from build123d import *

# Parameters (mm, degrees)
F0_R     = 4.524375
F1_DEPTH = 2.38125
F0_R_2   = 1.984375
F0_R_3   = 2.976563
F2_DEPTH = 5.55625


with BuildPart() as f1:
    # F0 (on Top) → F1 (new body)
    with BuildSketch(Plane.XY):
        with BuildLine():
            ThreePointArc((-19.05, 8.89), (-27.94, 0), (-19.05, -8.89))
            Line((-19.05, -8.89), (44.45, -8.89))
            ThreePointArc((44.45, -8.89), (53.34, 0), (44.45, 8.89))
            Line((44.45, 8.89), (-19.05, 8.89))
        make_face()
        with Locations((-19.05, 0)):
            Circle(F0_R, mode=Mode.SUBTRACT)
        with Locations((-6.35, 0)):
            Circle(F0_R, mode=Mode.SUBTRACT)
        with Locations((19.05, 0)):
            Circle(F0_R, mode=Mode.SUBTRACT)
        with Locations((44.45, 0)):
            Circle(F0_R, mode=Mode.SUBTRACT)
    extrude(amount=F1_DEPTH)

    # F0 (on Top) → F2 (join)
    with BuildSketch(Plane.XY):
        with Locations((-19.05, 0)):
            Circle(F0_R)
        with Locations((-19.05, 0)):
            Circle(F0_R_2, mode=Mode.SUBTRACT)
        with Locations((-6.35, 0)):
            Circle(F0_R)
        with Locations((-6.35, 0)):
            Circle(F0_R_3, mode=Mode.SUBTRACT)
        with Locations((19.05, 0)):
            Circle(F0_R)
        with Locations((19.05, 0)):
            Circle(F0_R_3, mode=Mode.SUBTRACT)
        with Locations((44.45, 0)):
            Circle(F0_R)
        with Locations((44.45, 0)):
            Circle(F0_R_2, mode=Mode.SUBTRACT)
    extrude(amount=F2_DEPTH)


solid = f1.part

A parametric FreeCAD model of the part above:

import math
import FreeCAD as App
import Part
import Sketcher
from FreeCAD import Vector
Q = App.Units.Quantity

doc = App.newDocument("Part")
body = doc.addObject("PartDesign::Body", "Body")

# Sketch on XY plane
sketch1 = body.newObject("Sketcher::SketchObject", "Sketch")
sketch1.AttachmentSupport = (doc.getObject("XY_Plane"), [""])
sketch1.MapMode = "FlatFace"
sketch1.addGeometry([
    Part.ArcOfCircle(Part.Circle(Vector(-19.05, 0, 0), Vector(0, 0, 1), 8.89), math.radians(90), math.radians(270)),  # 0
    Part.LineSegment(Vector(-19.05, -8.89, 0), Vector(44.45, -8.89, 0)),  # 1
    Part.ArcOfCircle(Part.Circle(Vector(44.45, 0, 0), Vector(0, 0, 1), 8.89), math.radians(-90), math.radians(90)),  # 2
    Part.LineSegment(Vector(44.45, 8.89, 0), Vector(-19.05, 8.89, 0)),  # 3
    Part.Circle(Vector(-19.05, 0, 0), Vector(0, 0, 1), 4.524375),  # 4
    Part.Circle(Vector(-6.35, 0, 0), Vector(0, 0, 1), 4.524375),  # 5
    Part.Circle(Vector(19.05, 0, 0), Vector(0, 0, 1), 4.524375),  # 6
    Part.Circle(Vector(44.45, 0, 0), Vector(0, 0, 1), 4.524375),  # 7
], False)
sketch1.addConstraint([
    Sketcher.Constraint("Tangent", 0, 2, 1, 1),
    Sketcher.Constraint("Tangent", 1, 2, 2, 1),
    Sketcher.Constraint("Tangent", 2, 2, 3, 1),
    Sketcher.Constraint("Tangent", 3, 2, 0, 1),
    Sketcher.Constraint("Horizontal", 1),
    Sketcher.Constraint("Horizontal", 3),
    Sketcher.Constraint("Coincident", 4, 3, 0, 3),
    Sketcher.Constraint("Coincident", 7, 3, 2, 3),
    Sketcher.Constraint("Equal", 4, 5),
    Sketcher.Constraint("Equal", 5, 6),
    Sketcher.Constraint("Equal", 6, 7),
    Sketcher.Constraint("Symmetric", 0, 3, 6, 3, -1, 1),
    Sketcher.Constraint("PointOnObject", 0, 3, -1),
    Sketcher.Constraint("PointOnObject", 5, 3, -1),
    Sketcher.Constraint("Radius", 0, Q("0.35 in")),
    Sketcher.Constraint("DistanceX", 1, 1, 1, 2, Q("2.5 in")),
    Sketcher.Constraint("DistanceX", 5, 3, 2, 3, Q("2 in")),
    Sketcher.Constraint("DistanceX", 5, 3, 6, 3, Q("1 in")),
    Sketcher.Constraint("Diameter", 4, 9.04875),
])
pad1 = body.newObject("PartDesign::Pad", "Pad")
pad1.Profile = sketch1
pad1.Length = Q("0.09375 in")

# Sketch on XY plane
sketch2 = body.newObject("Sketcher::SketchObject", "Sketch001")
sketch2.AttachmentSupport = (doc.getObject("XY_Plane"), [""])
sketch2.MapMode = "FlatFace"
sketch2.addGeometry([
    Part.Circle(Vector(-19.05, 0, 0), Vector(0, 0, 1), 4.524375),  # 0
    Part.Circle(Vector(-19.05, 0, 0), Vector(0, 0, 1), 1.984375),  # 1
    Part.Circle(Vector(-6.35, 0, 0), Vector(0, 0, 1), 4.524375),  # 2
    Part.Circle(Vector(-6.35, 0, 0), Vector(0, 0, 1), 2.976563),  # 3
    Part.Circle(Vector(19.05, 0, 0), Vector(0, 0, 1), 4.524375),  # 4
    Part.Circle(Vector(19.05, 0, 0), Vector(0, 0, 1), 2.976563),  # 5
    Part.Circle(Vector(44.45, 0, 0), Vector(0, 0, 1), 4.524375),  # 6
    Part.Circle(Vector(44.45, 0, 0), Vector(0, 0, 1), 1.984375),  # 7
], False)
sketch2.addConstraint([
    Sketcher.Constraint("Coincident", 1, 3, 0, 3),
    Sketcher.Constraint("Coincident", 3, 3, 2, 3),
    Sketcher.Constraint("Coincident", 5, 3, 4, 3),
    Sketcher.Constraint("Coincident", 7, 3, 6, 3),
    Sketcher.Constraint("Equal", 0, 2),
    Sketcher.Constraint("Equal", 2, 4),
    Sketcher.Constraint("Equal", 3, 5),
    Sketcher.Constraint("Equal", 4, 6),
    Sketcher.Constraint("Equal", 1, 7),
    Sketcher.Constraint("Symmetric", 0, 3, 4, 3, -1, 1),
    Sketcher.Constraint("PointOnObject", 0, 3, -1),
    Sketcher.Constraint("PointOnObject", 2, 3, -1),
    Sketcher.Constraint("PointOnObject", 6, 3, -1),
    Sketcher.Constraint("Diameter", 1, Q("0.15625 in")),
    Sketcher.Constraint("Diameter", 3, Q("0.234375 in")),
    Sketcher.Constraint("DistanceX", 2, 3, 4, 3, Q("1 in")),
    Sketcher.Constraint("DistanceX", 4, 3, 6, 3, Q("1 in")),
    Sketcher.Constraint("DistanceX", 0, 3, 2, 3, Q("0.5 in")),
    Sketcher.Constraint("Diameter", 0, 9.04875),
])
pad2 = body.newObject("PartDesign::Pad", "Pad001")
pad2.Profile = sketch2
pad2.Length = Q("0.21875 in")

doc.recompute()
